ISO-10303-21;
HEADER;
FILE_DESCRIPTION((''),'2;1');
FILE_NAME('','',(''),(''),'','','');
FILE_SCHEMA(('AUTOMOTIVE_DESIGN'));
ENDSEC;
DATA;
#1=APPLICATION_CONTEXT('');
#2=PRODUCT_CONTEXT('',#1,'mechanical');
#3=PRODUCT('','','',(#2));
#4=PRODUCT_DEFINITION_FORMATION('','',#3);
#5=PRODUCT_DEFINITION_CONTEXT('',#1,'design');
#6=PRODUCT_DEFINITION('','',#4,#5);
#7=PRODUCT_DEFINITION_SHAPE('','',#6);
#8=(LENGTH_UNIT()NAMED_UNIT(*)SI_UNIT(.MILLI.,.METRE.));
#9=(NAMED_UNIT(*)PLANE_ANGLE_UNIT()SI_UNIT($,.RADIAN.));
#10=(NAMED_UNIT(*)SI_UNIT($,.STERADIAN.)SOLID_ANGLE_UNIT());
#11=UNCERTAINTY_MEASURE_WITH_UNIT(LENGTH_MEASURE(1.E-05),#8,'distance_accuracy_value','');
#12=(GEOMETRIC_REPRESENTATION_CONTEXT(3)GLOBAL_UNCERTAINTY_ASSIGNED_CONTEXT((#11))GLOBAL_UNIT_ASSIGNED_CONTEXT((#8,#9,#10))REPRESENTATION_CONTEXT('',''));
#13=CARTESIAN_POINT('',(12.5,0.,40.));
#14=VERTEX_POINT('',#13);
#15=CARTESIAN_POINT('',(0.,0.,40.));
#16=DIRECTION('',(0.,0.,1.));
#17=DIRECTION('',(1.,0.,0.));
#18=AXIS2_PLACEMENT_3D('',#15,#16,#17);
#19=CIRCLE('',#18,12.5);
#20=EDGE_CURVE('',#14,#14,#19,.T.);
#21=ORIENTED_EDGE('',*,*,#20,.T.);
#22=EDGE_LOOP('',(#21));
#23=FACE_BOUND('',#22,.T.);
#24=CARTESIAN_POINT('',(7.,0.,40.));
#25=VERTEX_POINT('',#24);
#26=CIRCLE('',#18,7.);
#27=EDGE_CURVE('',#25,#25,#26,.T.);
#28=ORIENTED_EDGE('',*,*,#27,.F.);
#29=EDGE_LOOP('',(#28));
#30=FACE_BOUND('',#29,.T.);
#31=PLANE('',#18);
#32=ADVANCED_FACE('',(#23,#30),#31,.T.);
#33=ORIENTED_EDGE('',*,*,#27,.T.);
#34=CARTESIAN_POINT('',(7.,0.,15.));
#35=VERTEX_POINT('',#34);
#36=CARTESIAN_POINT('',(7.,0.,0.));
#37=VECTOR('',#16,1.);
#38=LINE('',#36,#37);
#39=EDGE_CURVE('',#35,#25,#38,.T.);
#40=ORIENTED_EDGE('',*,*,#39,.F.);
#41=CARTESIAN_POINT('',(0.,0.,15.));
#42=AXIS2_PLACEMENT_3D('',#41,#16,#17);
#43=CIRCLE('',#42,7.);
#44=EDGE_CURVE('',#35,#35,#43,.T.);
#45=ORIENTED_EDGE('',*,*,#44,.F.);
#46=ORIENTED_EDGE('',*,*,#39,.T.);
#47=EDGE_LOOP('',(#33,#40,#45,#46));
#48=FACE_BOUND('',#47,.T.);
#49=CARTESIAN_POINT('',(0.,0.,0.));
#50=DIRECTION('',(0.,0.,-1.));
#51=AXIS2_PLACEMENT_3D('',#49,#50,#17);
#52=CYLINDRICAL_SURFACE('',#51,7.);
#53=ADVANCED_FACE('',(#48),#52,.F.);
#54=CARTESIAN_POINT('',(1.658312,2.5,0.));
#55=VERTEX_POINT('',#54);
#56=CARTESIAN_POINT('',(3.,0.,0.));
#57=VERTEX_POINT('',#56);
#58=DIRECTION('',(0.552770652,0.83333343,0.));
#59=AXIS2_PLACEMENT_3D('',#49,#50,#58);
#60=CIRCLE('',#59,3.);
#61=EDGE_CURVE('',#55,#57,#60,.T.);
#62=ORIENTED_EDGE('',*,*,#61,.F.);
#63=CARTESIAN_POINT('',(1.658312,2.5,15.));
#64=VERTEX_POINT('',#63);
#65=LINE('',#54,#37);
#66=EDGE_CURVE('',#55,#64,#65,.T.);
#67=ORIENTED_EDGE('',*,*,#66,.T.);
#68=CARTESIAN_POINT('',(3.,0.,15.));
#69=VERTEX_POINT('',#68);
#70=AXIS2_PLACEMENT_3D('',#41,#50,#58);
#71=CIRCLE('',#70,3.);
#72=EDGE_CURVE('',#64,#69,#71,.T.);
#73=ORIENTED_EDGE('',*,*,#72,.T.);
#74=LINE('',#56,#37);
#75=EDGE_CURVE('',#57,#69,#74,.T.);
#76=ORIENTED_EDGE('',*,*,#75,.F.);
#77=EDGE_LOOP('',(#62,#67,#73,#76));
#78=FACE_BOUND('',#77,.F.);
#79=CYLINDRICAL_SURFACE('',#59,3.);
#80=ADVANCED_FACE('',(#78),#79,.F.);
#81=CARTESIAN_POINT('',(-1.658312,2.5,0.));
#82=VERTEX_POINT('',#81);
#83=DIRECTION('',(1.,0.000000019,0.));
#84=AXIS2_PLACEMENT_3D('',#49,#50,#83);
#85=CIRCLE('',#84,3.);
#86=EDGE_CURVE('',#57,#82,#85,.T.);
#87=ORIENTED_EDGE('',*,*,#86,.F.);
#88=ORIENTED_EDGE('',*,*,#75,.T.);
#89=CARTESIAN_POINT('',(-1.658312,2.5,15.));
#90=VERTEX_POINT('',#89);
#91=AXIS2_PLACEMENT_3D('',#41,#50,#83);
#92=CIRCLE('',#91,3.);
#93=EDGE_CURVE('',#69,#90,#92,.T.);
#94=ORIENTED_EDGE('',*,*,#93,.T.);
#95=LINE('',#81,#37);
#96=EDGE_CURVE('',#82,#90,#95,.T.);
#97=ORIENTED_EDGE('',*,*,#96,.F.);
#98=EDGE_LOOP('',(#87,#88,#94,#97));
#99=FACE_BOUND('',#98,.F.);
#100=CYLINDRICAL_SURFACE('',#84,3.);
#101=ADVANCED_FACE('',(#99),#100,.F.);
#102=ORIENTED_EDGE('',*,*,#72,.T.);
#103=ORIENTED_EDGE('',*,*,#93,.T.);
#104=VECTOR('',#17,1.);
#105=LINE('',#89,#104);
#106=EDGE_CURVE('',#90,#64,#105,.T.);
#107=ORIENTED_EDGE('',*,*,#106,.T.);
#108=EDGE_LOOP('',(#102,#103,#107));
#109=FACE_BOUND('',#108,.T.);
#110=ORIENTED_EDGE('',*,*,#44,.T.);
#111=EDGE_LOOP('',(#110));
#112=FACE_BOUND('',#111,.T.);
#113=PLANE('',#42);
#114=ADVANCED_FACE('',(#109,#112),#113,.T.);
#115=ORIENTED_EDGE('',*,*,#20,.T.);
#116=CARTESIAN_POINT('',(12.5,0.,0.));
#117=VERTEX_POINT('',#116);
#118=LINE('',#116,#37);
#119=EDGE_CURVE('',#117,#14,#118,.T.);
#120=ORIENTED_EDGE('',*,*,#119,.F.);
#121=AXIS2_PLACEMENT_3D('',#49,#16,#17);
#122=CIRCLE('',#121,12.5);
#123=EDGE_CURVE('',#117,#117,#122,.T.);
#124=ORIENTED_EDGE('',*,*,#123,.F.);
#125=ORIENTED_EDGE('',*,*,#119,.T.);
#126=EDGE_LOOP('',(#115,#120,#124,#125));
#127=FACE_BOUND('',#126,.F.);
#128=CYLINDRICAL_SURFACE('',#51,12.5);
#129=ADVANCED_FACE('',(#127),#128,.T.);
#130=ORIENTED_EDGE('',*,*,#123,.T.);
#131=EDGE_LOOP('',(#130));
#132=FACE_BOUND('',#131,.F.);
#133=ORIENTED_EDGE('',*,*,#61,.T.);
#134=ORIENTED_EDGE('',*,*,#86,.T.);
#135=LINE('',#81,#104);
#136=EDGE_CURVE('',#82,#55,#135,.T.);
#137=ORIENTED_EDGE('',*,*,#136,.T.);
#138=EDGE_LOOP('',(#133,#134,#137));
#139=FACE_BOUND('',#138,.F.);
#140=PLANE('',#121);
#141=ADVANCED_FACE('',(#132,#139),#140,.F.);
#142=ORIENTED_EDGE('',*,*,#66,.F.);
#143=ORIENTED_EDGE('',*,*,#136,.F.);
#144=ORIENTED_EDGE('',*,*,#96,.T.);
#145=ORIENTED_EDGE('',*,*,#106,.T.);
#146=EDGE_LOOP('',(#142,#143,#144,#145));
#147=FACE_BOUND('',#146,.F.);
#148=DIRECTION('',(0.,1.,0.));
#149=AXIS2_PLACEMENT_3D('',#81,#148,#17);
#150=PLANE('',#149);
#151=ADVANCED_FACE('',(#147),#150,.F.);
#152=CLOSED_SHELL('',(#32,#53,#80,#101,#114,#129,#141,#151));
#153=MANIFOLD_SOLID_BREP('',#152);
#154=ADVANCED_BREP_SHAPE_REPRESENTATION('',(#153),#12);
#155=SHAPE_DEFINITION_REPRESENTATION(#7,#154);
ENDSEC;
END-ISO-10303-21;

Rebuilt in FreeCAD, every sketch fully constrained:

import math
import FreeCAD as App
import Part
import Sketcher

V = App.Vector

doc = App.newDocument("Part")
params = doc.addObject("Spreadsheet::Sheet", "Params")
for row, (alias, value) in enumerate([
    ("sketch1_diameter", "25 mm"),
    ("sketch1_diameter2", "14 mm"),
    ("pad1_length", "40 mm"),
    ("sketch2_diameter", "14 mm"),
    ("sketch2_radius", "3 mm"),
    ("pad2_length", "15 mm"),
], start=1):
    params.set(f"A{row}", alias)
    params.set(f"B{row}", "=" + value)
    params.setAlias(f"B{row}", alias)

body = doc.addObject("PartDesign::Body", "Body")

# Sketch on XY plane
sketch1 = body.newObject("Sketcher::SketchObject", "Sketch")
sketch1.AttachmentSupport = (doc.getObject("XY_Plane"), [""])
sketch1.MapMode = "FlatFace"
sketch1.addGeometry(Part.Circle(V(0, 0, 0), V(0, 0, 1), 12.5), False)
sketch1.addGeometry(Part.Circle(V(0, 0, 0), V(0, 0, 1), 7), False)
sketch1.addConstraint(Sketcher.Constraint("Coincident", 0, 3, -1, 1))
sketch1.addConstraint(Sketcher.Constraint("Coincident", 1, 3, -1, 1))
sketch1.addConstraint(Sketcher.Constraint("Diameter", 0, 25.0))
sketch1.addConstraint(Sketcher.Constraint("Diameter", 1, 14.0))
sketch1.setExpression("Constraints[2]", "Params.sketch1_diameter")
sketch1.setExpression("Constraints[3]", "Params.sketch1_diameter2")
pad1 = body.newObject("PartDesign::Pad", "Pad")
pad1.Profile = sketch1
pad1.setExpression("Length", "Params.pad1_length")

# Sketch on XY plane
sketch2 = body.newObject("Sketcher::SketchObject", "Sketch001")
sketch2.AttachmentSupport = (doc.getObject("XY_Plane"), [""])
sketch2.MapMode = "FlatFace"
sketch2.addGeometry(Part.Circle(V(0, 0, 0), V(0, 0, 1), 7), False)
sketch2.addGeometry(Part.ArcOfCircle(Part.Circle(V(0, 0, 0), V(0, 0, 1), 3), math.radians(123.557305), math.radians(360.000001)), False)
sketch2.addGeometry(Part.LineSegment(V(-1.658312, 2.5, 0), V(1.658312, 2.5, 0)), False)
sketch2.addGeometry(Part.ArcOfCircle(Part.Circle(V(0, 0, 0), V(0, 0, 1), 3), math.radians(0.000004), math.radians(56.4427)), False)
sketch2.addConstraint(Sketcher.Constraint("Coincident", 1, 1, 2, 1))
sketch2.addConstraint(Sketcher.Constraint("Coincident", 2, 2, 3, 2))
sketch2.addConstraint(Sketcher.Constraint("Tangent", 3, 1, 1, 2))
sketch2.addConstraint(Sketcher.Constraint("Horizontal", 2))
sketch2.addConstraint(Sketcher.Constraint("Coincident", 0, 3, -1, 1))
sketch2.addConstraint(Sketcher.Constraint("Coincident", 1, 3, -1, 1))
sketch2.addConstraint(Sketcher.Constraint("Equal", 1, 3))
sketch2.addConstraint(Sketcher.Constraint("PointOnObject", 3, 1, -1))
sketch2.addConstraint(Sketcher.Constraint("Diameter", 0, 14.0))
sketch2.addConstraint(Sketcher.Constraint("Radius", 1, 3.0))
sketch2.addConstraint(Sketcher.Constraint("DistanceY", -1, 1, 1, 1, 2.5))
sketch2.setExpression("Constraints[8]", "Params.sketch2_diameter")
sketch2.setExpression("Constraints[9]", "Params.sketch2_radius")
pad2 = body.newObject("PartDesign::Pad", "Pad001")
pad2.Profile = sketch2
pad2.setExpression("Length", "Params.pad2_length")

doc.recompute()
